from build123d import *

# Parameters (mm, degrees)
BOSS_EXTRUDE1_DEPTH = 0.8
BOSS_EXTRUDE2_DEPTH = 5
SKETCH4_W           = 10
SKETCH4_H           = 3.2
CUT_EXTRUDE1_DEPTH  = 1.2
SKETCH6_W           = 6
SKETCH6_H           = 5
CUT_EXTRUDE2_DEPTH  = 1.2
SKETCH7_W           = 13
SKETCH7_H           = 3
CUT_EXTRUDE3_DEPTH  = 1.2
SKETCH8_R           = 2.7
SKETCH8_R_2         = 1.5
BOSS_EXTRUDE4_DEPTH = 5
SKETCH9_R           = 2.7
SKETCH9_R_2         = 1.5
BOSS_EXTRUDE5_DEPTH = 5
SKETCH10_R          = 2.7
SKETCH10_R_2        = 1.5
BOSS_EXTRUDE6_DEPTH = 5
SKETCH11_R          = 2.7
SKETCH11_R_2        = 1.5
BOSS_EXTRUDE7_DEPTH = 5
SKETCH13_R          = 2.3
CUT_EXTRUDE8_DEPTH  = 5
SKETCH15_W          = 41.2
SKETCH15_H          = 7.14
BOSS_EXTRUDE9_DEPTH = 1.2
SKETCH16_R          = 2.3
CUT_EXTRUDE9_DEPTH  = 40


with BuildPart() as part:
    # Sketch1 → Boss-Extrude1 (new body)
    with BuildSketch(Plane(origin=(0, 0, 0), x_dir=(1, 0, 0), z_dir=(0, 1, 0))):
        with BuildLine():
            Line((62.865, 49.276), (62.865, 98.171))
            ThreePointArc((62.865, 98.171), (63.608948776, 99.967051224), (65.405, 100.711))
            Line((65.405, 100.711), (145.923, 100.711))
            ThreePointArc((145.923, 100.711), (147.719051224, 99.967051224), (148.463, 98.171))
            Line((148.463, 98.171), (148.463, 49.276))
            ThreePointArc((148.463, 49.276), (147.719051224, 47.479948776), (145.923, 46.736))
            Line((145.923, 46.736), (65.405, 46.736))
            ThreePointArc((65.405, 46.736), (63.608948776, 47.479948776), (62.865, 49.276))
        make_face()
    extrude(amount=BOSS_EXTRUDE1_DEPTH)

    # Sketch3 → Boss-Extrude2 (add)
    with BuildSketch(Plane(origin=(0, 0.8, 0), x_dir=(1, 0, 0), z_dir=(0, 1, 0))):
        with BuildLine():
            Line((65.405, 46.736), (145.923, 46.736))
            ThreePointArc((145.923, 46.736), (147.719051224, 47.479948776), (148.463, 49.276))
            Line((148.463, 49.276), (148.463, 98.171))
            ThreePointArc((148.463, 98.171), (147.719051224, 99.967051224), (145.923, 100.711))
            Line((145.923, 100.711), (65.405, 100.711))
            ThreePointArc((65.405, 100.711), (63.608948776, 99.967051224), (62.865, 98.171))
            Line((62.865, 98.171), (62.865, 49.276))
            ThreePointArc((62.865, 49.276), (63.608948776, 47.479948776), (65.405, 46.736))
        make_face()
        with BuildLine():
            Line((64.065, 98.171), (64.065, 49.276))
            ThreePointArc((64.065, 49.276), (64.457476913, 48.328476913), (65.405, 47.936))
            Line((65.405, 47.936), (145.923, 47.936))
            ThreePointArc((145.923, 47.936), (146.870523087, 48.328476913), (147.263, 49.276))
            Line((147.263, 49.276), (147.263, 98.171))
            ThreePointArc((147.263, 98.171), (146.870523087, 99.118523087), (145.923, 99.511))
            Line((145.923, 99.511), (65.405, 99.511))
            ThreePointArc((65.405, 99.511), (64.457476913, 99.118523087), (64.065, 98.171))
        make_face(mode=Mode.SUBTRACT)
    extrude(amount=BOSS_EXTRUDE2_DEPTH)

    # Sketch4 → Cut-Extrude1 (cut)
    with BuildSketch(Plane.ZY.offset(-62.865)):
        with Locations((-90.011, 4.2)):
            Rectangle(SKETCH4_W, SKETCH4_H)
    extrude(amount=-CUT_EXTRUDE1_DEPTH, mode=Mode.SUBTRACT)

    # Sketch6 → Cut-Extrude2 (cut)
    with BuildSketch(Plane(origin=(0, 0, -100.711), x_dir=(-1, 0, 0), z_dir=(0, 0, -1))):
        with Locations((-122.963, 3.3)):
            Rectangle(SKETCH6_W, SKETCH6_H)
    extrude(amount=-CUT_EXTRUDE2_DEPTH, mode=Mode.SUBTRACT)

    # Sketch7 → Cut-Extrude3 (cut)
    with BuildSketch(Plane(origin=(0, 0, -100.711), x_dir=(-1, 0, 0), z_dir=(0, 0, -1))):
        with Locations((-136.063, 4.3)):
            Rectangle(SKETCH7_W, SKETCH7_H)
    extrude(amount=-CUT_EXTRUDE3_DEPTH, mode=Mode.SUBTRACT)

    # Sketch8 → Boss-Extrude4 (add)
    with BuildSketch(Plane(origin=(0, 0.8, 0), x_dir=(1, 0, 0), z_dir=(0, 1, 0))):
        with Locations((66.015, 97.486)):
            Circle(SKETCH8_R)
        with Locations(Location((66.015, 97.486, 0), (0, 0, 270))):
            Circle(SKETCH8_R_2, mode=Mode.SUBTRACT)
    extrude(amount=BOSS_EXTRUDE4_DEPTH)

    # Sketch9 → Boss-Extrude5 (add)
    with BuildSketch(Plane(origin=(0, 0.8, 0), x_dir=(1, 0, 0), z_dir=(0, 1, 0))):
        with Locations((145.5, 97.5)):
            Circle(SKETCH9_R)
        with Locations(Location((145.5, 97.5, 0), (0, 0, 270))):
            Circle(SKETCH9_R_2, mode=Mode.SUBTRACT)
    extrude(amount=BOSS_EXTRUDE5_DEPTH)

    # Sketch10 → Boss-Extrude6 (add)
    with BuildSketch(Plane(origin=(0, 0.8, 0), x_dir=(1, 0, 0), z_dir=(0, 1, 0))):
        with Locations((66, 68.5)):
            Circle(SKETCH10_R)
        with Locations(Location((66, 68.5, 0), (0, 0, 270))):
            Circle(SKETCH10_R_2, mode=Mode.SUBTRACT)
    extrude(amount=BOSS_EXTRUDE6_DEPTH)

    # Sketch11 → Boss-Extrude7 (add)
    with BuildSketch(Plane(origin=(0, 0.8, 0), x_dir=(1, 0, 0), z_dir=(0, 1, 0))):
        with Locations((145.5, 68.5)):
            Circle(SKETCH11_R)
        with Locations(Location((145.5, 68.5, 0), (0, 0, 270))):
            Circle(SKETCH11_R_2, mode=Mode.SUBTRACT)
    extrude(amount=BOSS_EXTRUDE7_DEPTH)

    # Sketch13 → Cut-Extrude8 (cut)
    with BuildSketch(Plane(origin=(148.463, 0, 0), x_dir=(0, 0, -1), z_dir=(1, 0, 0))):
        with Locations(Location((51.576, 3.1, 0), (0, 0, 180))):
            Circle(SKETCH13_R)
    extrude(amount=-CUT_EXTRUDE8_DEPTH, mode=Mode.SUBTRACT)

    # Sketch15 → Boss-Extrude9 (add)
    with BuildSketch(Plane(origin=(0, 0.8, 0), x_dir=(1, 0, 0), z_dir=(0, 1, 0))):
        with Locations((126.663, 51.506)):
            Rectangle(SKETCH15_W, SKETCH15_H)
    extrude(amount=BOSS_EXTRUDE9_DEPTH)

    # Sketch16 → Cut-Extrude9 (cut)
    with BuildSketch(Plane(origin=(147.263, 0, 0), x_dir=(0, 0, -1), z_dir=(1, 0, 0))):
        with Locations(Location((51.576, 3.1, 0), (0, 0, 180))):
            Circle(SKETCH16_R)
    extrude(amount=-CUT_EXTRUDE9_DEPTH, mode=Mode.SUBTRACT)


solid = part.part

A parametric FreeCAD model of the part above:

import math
import FreeCAD as App
import Part
import Sketcher

V = App.Vector

doc = App.newDocument("Part")
params = doc.addObject("Spreadsheet::Sheet", "Params")
for row, (alias, value) in enumerate([
    ("sketch1_radius", "2.54 mm"),
    ("pad1_length", "0.8 mm"),
    ("sketch2_radius", "2.54 mm"),
    ("sketch2_radius2", "1.34 mm"),
    ("pad2_length", "5 mm"),
    ("sketch3_height", "10 mm"),
    ("sketch3_width", "3.2 mm"),
    ("pocket1_length", "1.2 mm"),
    ("sketch4_width", "6 mm"),
    ("sketch4_height", "5 mm"),
    ("pocket2_length", "1.2 mm"),
    ("sketch5_width", "13 mm"),
    ("sketch5_height", "3 mm"),
    ("pocket3_length", "1.2 mm"),
    ("sketch6_diameter", "3 mm"),
    ("sketch6_diameter2", "5.4 mm"),
    ("pad3_length", "5 mm"),
    ("sketch7_diameter", "3 mm"),
    ("sketch7_diameter2", "5.4 mm"),
    ("pad4_length", "5 mm"),
    ("sketch8_diameter", "3 mm"),
    ("sketch8_diameter2", "5.4 mm"),
    ("pad5_length", "5 mm"),
    ("sketch9_diameter", "3 mm"),
    ("sketch9_diameter2", "5.4 mm"),
    ("pad6_length", "5 mm"),
    ("sketch10_diameter", "4.6 mm"),
    ("pocket4_length", "5 mm"),
    ("sketch11_width", "41.2 mm"),
    ("sketch11_height", "7.14 mm"),
    ("pad7_length", "1.2 mm"),
    ("sketch12_diameter", "4.6 mm"),
    ("pocket5_length", "40 mm"),
], start=1):
    params.set(f"A{row}", alias)
    params.set(f"B{row}", "=" + value)
    params.setAlias(f"B{row}", alias)

body = doc.addObject("PartDesign::Body", "Body")

# Sketch on XZ plane
sketch1 = body.newObject("Sketcher::SketchObject", "Sketch")
sketch1.AttachmentSupport = (doc.getObject("XZ_Plane"), [""])
sketch1.MapMode = "FlatFace"
sketch1.addGeometry([
    Part.LineSegment(V(62.865, -98.171, 0), V(62.865, -49.276, 0)),  # 0
    Part.ArcOfCircle(Part.Circle(V(65.405, -49.276, 0), V(0, 0, 1), 2.54), math.radians(90), math.radians(180)),  # 1
    Part.LineSegment(V(65.405, -46.736, 0), V(145.923, -46.736, 0)),  # 2
    Part.ArcOfCircle(Part.Circle(V(145.923, -49.276, 0), V(0, 0, 1), 2.54), math.radians(0), math.radians(90)),  # 3
    Part.LineSegment(V(148.463, -49.276, 0), V(148.463, -98.171, 0)),  # 4
    Part.ArcOfCircle(Part.Circle(V(145.923, -98.171, 0), V(0, 0, 1), 2.54), math.radians(-90), math.radians(0)),  # 5
    Part.LineSegment(V(145.923, -100.711, 0), V(65.405, -100.711, 0)),  # 6
    Part.ArcOfCircle(Part.Circle(V(65.405, -98.171, 0), V(0, 0, 1), 2.54), math.radians(-180), math.radians(-90)),  # 7
], False)
sketch1.addConstraint([
    Sketcher.Constraint("Tangent", 0, 2, 1, 2),
    Sketcher.Constraint("Tangent", 1, 1, 2, 1),
    Sketcher.Constraint("Tangent", 2, 2, 3, 2),
    Sketcher.Constraint("Tangent", 3, 1, 4, 1),
    Sketcher.Constraint("Tangent", 4, 2, 5, 2),
    Sketcher.Constraint("Tangent", 5, 1, 6, 1),
    Sketcher.Constraint("Tangent", 6, 2, 7, 2),
    Sketcher.Constraint("Tangent", 7, 1, 0, 1),
    Sketcher.Constraint("Vertical", 0),
    Sketcher.Constraint("Horizontal", 2),
    Sketcher.Constraint("Vertical", 4),
    Sketcher.Constraint("Horizontal", 6),
    Sketcher.Constraint("Equal", 1, 3),
    Sketcher.Constraint("Equal", 3, 5),
    Sketcher.Constraint("Equal", 5, 7),
    Sketcher.Constraint("Radius", 1, 2.54),
    Sketcher.Constraint("DistanceX", 2, 1, 2, 2, 80.518),
    Sketcher.Constraint("DistanceY", 0, 1, 0, 2, 48.895),
    Sketcher.Constraint("DistanceX", -1, 1, 1, 3, 65.405),
    Sketcher.Constraint("DistanceY", 1, 3, -1, 1, 49.276),
])
sketch1.setExpression("Constraints[15]", "Params.sketch1_radius")
pad1 = body.newObject("PartDesign::Pad", "Pad")
pad1.Profile = sketch1
pad1.setExpression("Length", "Params.pad1_length")
pad1.Reversed = True

# Sketch on XZ plane
sketch2 = body.newObject("Sketcher::SketchObject", "Sketch001")
sketch2.AttachmentSupport = (doc.getObject("XZ_Plane"), [""])
sketch2.MapMode = "FlatFace"
sketch2.AttachmentOffset = App.Placement(V(0, 0, -0.8), App.Rotation())
sketch2.addGeometry([
    Part.LineSegment(V(65.405, -46.736, 0), V(145.923, -46.736, 0)),  # 0
    Part.ArcOfCircle(Part.Circle(V(145.923, -49.276, 0), V(0, 0, 1), 2.54), math.radians(0), math.radians(90)),  # 1
    Part.LineSegment(V(148.463, -49.276, 0), V(148.463, -98.171, 0)),  # 2
    Part.ArcOfCircle(Part.Circle(V(145.923, -98.171, 0), V(0, 0, 1), 2.54), math.radians(-90), math.radians(0)),  # 3
    Part.LineSegment(V(145.923, -100.711, 0), V(65.405, -100.711, 0)),  # 4
    Part.ArcOfCircle(Part.Circle(V(65.405, -98.171, 0), V(0, 0, 1), 2.54), math.radians(-180), math.radians(-90)),  # 5
    Part.LineSegment(V(62.865, -98.171, 0), V(62.865, -49.276, 0)),  # 6
    Part.ArcOfCircle(Part.Circle(V(65.405, -49.276, 0), V(0, 0, 1), 2.54), math.radians(90), math.radians(180)),  # 7
    Part.LineSegment(V(64.065, -49.276, 0), V(64.065, -98.171, 0)),  # 8
    Part.ArcOfCircle(Part.Circle(V(65.405, -98.171, 0), V(0, 0, 1), 1.34), math.radians(180), math.radians(270)),  # 9
    Part.LineSegment(V(65.405, -99.511, 0), V(145.923, -99.511, 0)),  # 10
    Part.ArcOfCircle(Part.Circle(V(145.923, -98.171, 0), V(0, 0, 1), 1.34), math.radians(-90), math.radians(0)),  # 11
    Part.LineSegment(V(147.263, -98.171, 0), V(147.263, -49.276, 0)),  # 12
    Part.ArcOfCircle(Part.Circle(V(145.923, -49.276, 0), V(0, 0, 1), 1.34), math.radians(0), math.radians(90)),  # 13
    Part.LineSegment(V(145.923, -47.936, 0), V(65.405, -47.936, 0)),  # 14
    Part.ArcOfCircle(Part.Circle(V(65.405, -49.276, 0), V(0, 0, 1), 1.34), math.radians(90), math.radians(180)),  # 15
], False)
sketch2.addConstraint([
    Sketcher.Constraint("Tangent", 0, 2, 1, 2),
    Sketcher.Constraint("Tangent", 1, 1, 2, 1),
    Sketcher.Constraint("Tangent", 2, 2, 3, 2),
    Sketcher.Constraint("Tangent", 3, 1, 4, 1),
    Sketcher.Constraint("Tangent", 4, 2, 5, 2),
    Sketcher.Constraint("Tangent", 5, 1, 6, 1),
    Sketcher.Constraint("Tangent", 6, 2, 7, 2),
    Sketcher.Constraint("Tangent", 7, 1, 0, 1),
    Sketcher.Constraint("Tangent", 8, 2, 9, 1),
    Sketcher.Constraint("Tangent", 9, 2, 10, 1),
    Sketcher.Constraint("Tangent", 10, 2, 11, 1),
    Sketcher.Constraint("Tangent", 11, 2, 12, 1),
    Sketcher.Constraint("Tangent", 12, 2, 13, 1),
    Sketcher.Constraint("Tangent", 13, 2, 14, 1),
    Sketcher.Constraint("Tangent", 14, 2, 15, 1),
    Sketcher.Constraint("Tangent", 15, 2, 8, 1),
    Sketcher.Constraint("Horizontal", 0),
    Sketcher.Constraint("Vertical", 2),
    Sketcher.Constraint("Horizontal", 4),
    Sketcher.Constraint("Vertical", 6),
    Sketcher.Constraint("Vertical", 8),
    Sketcher.Constraint("Horizontal", 10),
    Sketcher.Constraint("Vertical", 12),
    Sketcher.Constraint("Horizontal", 14),
    Sketcher.Constraint("Coincident", 9, 3, 5, 3),
    Sketcher.Constraint("Coincident", 11, 3, 3, 3),
    Sketcher.Constraint("Coincident", 13, 3, 1, 3),
    Sketcher.Constraint("Equal", 1, 3),
    Sketcher.Constraint("Equal", 3, 5),
    Sketcher.Constraint("Equal", 5, 7),
    Sketcher.Constraint("Equal", 13, 15),
    Sketcher.Constraint("Radius", 1, 2.54),
    Sketcher.Constraint("Radius", 9, 1.34),
    Sketcher.Constraint("DistanceX", 0, 1, 0, 2, 80.518),
    Sketcher.Constraint("DistanceY", 2, 2, 2, 1, 48.895),
    Sketcher.Constraint("DistanceX", -1, 1, 1, 3, 145.923),
    Sketcher.Constraint("DistanceY", 1, 3, -1, 1, 49.276),
])
sketch2.setExpression("Constraints[31]", "Params.sketch2_radius")
sketch2.setExpression("Constraints[32]", "Params.sketch2_radius2")
pad2 = body.newObject("PartDesign::Pad", "Pad001")
pad2.Profile = sketch2
pad2.setExpression("Length", "Params.pad2_length")
pad2.Reversed = True

# Sketch on YZ plane
sketch3 = body.newObject("Sketcher::SketchObject", "Sketch002")
sketch3.AttachmentSupport = (doc.getObject("YZ_Plane"), [""])
sketch3.MapMode = "FlatFace"
sketch3.AttachmentOffset = App.Placement(V(0, 0, 62.865), App.Rotation())
sketch3.addGeometry([
    Part.LineSegment(V(5.8, -95.011, 0), V(2.6, -95.011, 0)),
    Part.LineSegment(V(2.6, -95.011, 0), V(2.6, -85.011, 0)),
    Part.LineSegment(V(2.6, -85.011, 0), V(5.8, -85.011, 0)),
    Part.LineSegment(V(5.8, -85.011, 0), V(5.8, -95.011, 0)),
], False)
sketch3.addConstraint([
    Sketcher.Constraint("Coincident", 0, 2, 1, 1),
    Sketcher.Constraint("Coincident", 1, 2, 2, 1),
    Sketcher.Constraint("Coincident", 2, 2, 3, 1),
    Sketcher.Constraint("Coincident", 3, 2, 0, 1),
    Sketcher.Constraint("Horizontal", 0),
    Sketcher.Constraint("Vertical", 1),
    Sketcher.Constraint("Horizontal", 2),
    Sketcher.Constraint("Vertical", 3),
    Sketcher.Constraint("DistanceY", 1, 1, 1, 2, 10.0),
    Sketcher.Constraint("DistanceX", 0, 2, 0, 1, 3.2),
    Sketcher.Constraint("DistanceX", -1, 1, 0, 2, 2.6),
    Sketcher.Constraint("DistanceY", 0, 2, -1, 1, 95.011),
])
sketch3.setExpression("Constraints[8]", "Params.sketch3_height")
sketch3.setExpression("Constraints[9]", "Params.sketch3_width")
pocket1 = body.newObject("PartDesign::Pocket", "Pocket")
pocket1.Profile = sketch3
pocket1.setExpression("Length", "Params.pocket1_length")
pocket1.Reversed = True

# Sketch on XY plane
sketch4 = body.newObject("Sketcher::SketchObject", "Sketch003")
sketch4.AttachmentSupport = (doc.getObject("XY_Plane"), [""])
sketch4.MapMode = "FlatFace"
sketch4.AttachmentOffset = App.Placement(V(0, 0, -100.711), App.Rotation())
sketch4.addGeometry([
    Part.LineSegment(V(125.963, 5.8, 0), V(125.963, 0.8, 0)),
    Part.LineSegment(V(125.963, 0.8, 0), V(119.963, 0.8, 0)),
    Part.LineSegment(V(119.963, 0.8, 0), V(119.963, 5.8, 0)),
    Part.LineSegment(V(119.963, 5.8, 0), V(125.963, 5.8, 0)),
], False)
sketch4.addConstraint([
    Sketcher.Constraint("Coincident", 0, 2, 1, 1),
    Sketcher.Constraint("Coincident", 1, 2, 2, 1),
    Sketcher.Constraint("Coincident", 2, 2, 3, 1),
    Sketcher.Constraint("Coincident", 3, 2, 0, 1),
    Sketcher.Constraint("Vertical", 0),
    Sketcher.Constraint("Horizontal", 1),
    Sketcher.Constraint("Vertical", 2),
    Sketcher.Constraint("Horizontal", 3),
    Sketcher.Constraint("DistanceX", 1, 2, 1, 1, 6.0),
    Sketcher.Constraint("DistanceY", 0, 2, 0, 1, 5.0),
    Sketcher.Constraint("DistanceY", -1, 1, 0, 2, 0.8),
    Sketcher.Constraint("DistanceX", -1, 1, 0, 2, 125.963),
])
sketch4.setExpression("Constraints[8]", "Params.sketch4_width")
sketch4.setExpression("Constraints[9]", "Params.sketch4_height")
pocket2 = body.newObject("PartDesign::Pocket", "Pocket001")
pocket2.Profile = sketch4
pocket2.setExpression("Length", "Params.pocket2_length")
pocket2.Reversed = True

# Sketch on XY plane
sketch5 = body.newObject("Sketcher::SketchObject", "Sketch004")
sketch5.AttachmentSupport = (doc.getObject("XY_Plane"), [""])
sketch5.MapMode = "FlatFace"
sketch5.AttachmentOffset = App.Placement(V(0, 0, -100.711), App.Rotation())
sketch5.addGeometry([
    Part.LineSegment(V(142.563, 5.8, 0), V(142.563, 2.8, 0)),
    Part.LineSegment(V(142.563, 2.8, 0), V(129.563, 2.8, 0)),
    Part.LineSegment(V(129.563, 2.8, 0), V(129.563, 5.8, 0)),
    Part.LineSegment(V(129.563, 5.8, 0), V(142.563, 5.8, 0)),
], False)
sketch5.addConstraint([
    Sketcher.Constraint("Coincident", 0, 2, 1, 1),
    Sketcher.Constraint("Coincident", 1, 2, 2, 1),
    Sketcher.Constraint("Coincident", 2, 2, 3, 1),
    Sketcher.Constraint("Coincident", 3, 2, 0, 1),
    Sketcher.Constraint("Vertical", 0),
    Sketcher.Constraint("Horizontal", 1),
    Sketcher.Constraint("Vertical", 2),
    Sketcher.Constraint("Horizontal", 3),
    Sketcher.Constraint("DistanceX", 1, 2, 1, 1, 13.0),
    Sketcher.Constraint("DistanceY", 0, 2, 0, 1, 3.0),
    Sketcher.Constraint("DistanceY", -1, 1, 0, 2, 2.8),
    Sketcher.Constraint("DistanceX", -1, 1, 0, 2, 142.563),
])
sketch5.setExpression("Constraints[8]", "Params.sketch5_width")
sketch5.setExpression("Constraints[9]", "Params.sketch5_height")
pocket3 = body.newObject("PartDesign::Pocket", "Pocket002")
pocket3.Profile = sketch5
pocket3.setExpression("Length", "Params.pocket3_length")
pocket3.Reversed = True

# Sketch on XZ plane
sketch6 = body.newObject("Sketcher::SketchObject", "Sketch005")
sketch6.AttachmentSupport = (doc.getObject("XZ_Plane"), [""])
sketch6.MapMode = "FlatFace"
sketch6.AttachmentOffset = App.Placement(V(0, 0, -0.8), App.Rotation())
sketch6.addGeometry([
    Part.Circle(V(66.015, -97.486, 0), V(0, 0, 1), 2.7),
    Part.Circle(V(66.015, -97.486, 0), V(0, 0, 1), 1.5),
], False)
sketch6.addConstraint([
    Sketcher.Constraint("Coincident", 1, 3, 0, 3),
    Sketcher.Constraint("Diameter", 1, 3.0),
    Sketcher.Constraint("Diameter", 0, 5.4),
    Sketcher.Constraint("DistanceX", -1, 1, 0, 3, 66.015),
    Sketcher.Constraint("DistanceY", 0, 3, -1, 1, 97.486),
])
sketch6.setExpression("Constraints[1]", "Params.sketch6_diameter")
sketch6.setExpression("Constraints[2]", "Params.sketch6_diameter2")
pad3 = body.newObject("PartDesign::Pad", "Pad002")
pad3.Profile = sketch6
pad3.setExpression("Length", "Params.pad3_length")
pad3.Reversed = True

# Sketch on XZ plane
sketch7 = body.newObject("Sketcher::SketchObject", "Sketch006")
sketch7.AttachmentSupport = (doc.getObject("XZ_Plane"), [""])
sketch7.MapMode = "FlatFace"
sketch7.AttachmentOffset = App.Placement(V(0, 0, -0.8), App.Rotation())
sketch7.addGeometry([
    Part.Circle(V(145.5, -97.5, 0), V(0, 0, 1), 2.7),
    Part.Circle(V(145.5, -97.5, 0), V(0, 0, 1), 1.5),
], False)
sketch7.addConstraint([
    Sketcher.Constraint("Coincident", 1, 3, 0, 3),
    Sketcher.Constraint("Diameter", 1, 3.0),
    Sketcher.Constraint("Diameter", 0, 5.4),
    Sketcher.Constraint("DistanceX", -1, 1, 0, 3, 145.5),
    Sketcher.Constraint("DistanceY", 0, 3, -1, 1, 97.5),
])
sketch7.setExpression("Constraints[1]", "Params.sketch7_diameter")
sketch7.setExpression("Constraints[2]", "Params.sketch7_diameter2")
pad4 = body.newObject("PartDesign::Pad", "Pad003")
pad4.Profile = sketch7
pad4.setExpression("Length", "Params.pad4_length")
pad4.Reversed = True

# Sketch on XZ plane
sketch8 = body.newObject("Sketcher::SketchObject", "Sketch007")
sketch8.AttachmentSupport = (doc.getObject("XZ_Plane"), [""])
sketch8.MapMode = "FlatFace"
sketch8.AttachmentOffset = App.Placement(V(0, 0, -0.8), App.Rotation())
sketch8.addGeometry([
    Part.Circle(V(66, -68.5, 0), V(0, 0, 1), 2.7),
    Part.Circle(V(66, -68.5, 0), V(0, 0, 1), 1.5),
], False)
sketch8.addConstraint([
    Sketcher.Constraint("Coincident", 1, 3, 0, 3),
    Sketcher.Constraint("Diameter", 1, 3.0),
    Sketcher.Constraint("Diameter", 0, 5.4),
    Sketcher.Constraint("DistanceX", -1, 1, 0, 3, 66.0),
    Sketcher.Constraint("DistanceY", 0, 3, -1, 1, 68.5),
])
sketch8.setExpression("Constraints[1]", "Params.sketch8_diameter")
sketch8.setExpression("Constraints[2]", "Params.sketch8_diameter2")
pad5 = body.newObject("PartDesign::Pad", "Pad004")
pad5.Profile = sketch8
pad5.setExpression("Length", "Params.pad5_length")
pad5.Reversed = True

# Sketch on XZ plane
sketch9 = body.newObject("Sketcher::SketchObject", "Sketch008")
sketch9.AttachmentSupport = (doc.getObject("XZ_Plane"), [""])
sketch9.MapMode = "FlatFace"
sketch9.AttachmentOffset = App.Placement(V(0, 0, -0.8), App.Rotation())
sketch9.addGeometry([
    Part.Circle(V(145.5, -68.5, 0), V(0, 0, 1), 2.7),
    Part.Circle(V(145.5, -68.5, 0), V(0, 0, 1), 1.5),
], False)
sketch9.addConstraint([
    Sketcher.Constraint("Coincident", 1, 3, 0, 3),
    Sketcher.Constraint("Diameter", 1, 3.0),
    Sketcher.Constraint("Diameter", 0, 5.4),
    Sketcher.Constraint("DistanceX", -1, 1, 0, 3, 145.5),
    Sketcher.Constraint("DistanceY", 0, 3, -1, 1, 68.5),
])
sketch9.setExpression("Constraints[1]", "Params.sketch9_diameter")
sketch9.setExpression("Constraints[2]", "Params.sketch9_diameter2")
pad6 = body.newObject("PartDesign::Pad", "Pad005")
pad6.Profile = sketch9
pad6.setExpression("Length", "Params.pad6_length")
pad6.Reversed = True

# Sketch on YZ plane
sketch10 = body.newObject("Sketcher::SketchObject", "Sketch009")
sketch10.AttachmentSupport = (doc.getObject("YZ_Plane"), [""])
sketch10.MapMode = "FlatFace"
sketch10.AttachmentOffset = App.Placement(V(0, 0, 148.463), App.Rotation())
sketch10.addGeometry(Part.Circle(V(3.1, -51.576, 0), V(0, 0, 1), 2.3), False)
sketch10.addConstraint([
    Sketcher.Constraint("Diameter", 0, 4.6),
    Sketcher.Constraint("DistanceX", -1, 1, 0, 3, 3.1),
    Sketcher.Constraint("DistanceY", 0, 3, -1, 1, 51.576),
])
sketch10.setExpression("Constraints[0]", "Params.sketch10_diameter")
pocket4 = body.newObject("PartDesign::Pocket", "Pocket003")
pocket4.Profile = sketch10
pocket4.setExpression("Length", "Params.pocket4_length")

# Sketch on XZ plane
sketch11 = body.newObject("Sketcher::SketchObject", "Sketch010")
sketch11.AttachmentSupport = (doc.getObject("XZ_Plane"), [""])
sketch11.MapMode = "FlatFace"
sketch11.AttachmentOffset = App.Placement(V(0, 0, -0.8), App.Rotation())
sketch11.addGeometry([
    Part.LineSegment(V(106.063, -55.076, 0), V(106.063, -47.936, 0)),
    Part.LineSegment(V(106.063, -47.936, 0), V(147.263, -47.936, 0)),
    Part.LineSegment(V(147.263, -47.936, 0), V(147.263, -55.076, 0)),
    Part.LineSegment(V(147.263, -55.076, 0), V(106.063, -55.076, 0)),
], False)
sketch11.addConstraint([
    Sketcher.Constraint("Coincident", 0, 2, 1, 1),
    Sketcher.Constraint("Coincident", 1, 2, 2, 1),
    Sketcher.Constraint("Coincident", 2, 2, 3, 1),
    Sketcher.Constraint("Coincident", 3, 2, 0, 1),
    Sketcher.Constraint("Vertical", 0),
    Sketcher.Constraint("Horizontal", 1),
    Sketcher.Constraint("Vertical", 2),
    Sketcher.Constraint("Horizontal", 3),
    Sketcher.Constraint("DistanceX", 1, 1, 1, 2, 41.2),
    Sketcher.Constraint("DistanceY", 0, 1, 0, 2, 7.14),
    Sketcher.Constraint("DistanceX", -1, 1, 0, 2, 106.063),
    Sketcher.Constraint("DistanceY", 0, 2, -1, 1, 47.936),
])
sketch11.setExpression("Constraints[8]", "Params.sketch11_width")
sketch11.setExpression("Constraints[9]", "Params.sketch11_height")
pad7 = body.newObject("PartDesign::Pad", "Pad006")
pad7.Profile = sketch11
pad7.setExpression("Length", "Params.pad7_length")
pad7.Reversed = True

# Sketch on YZ plane
sketch12 = body.newObject("Sketcher::SketchObject", "Sketch011")
sketch12.AttachmentSupport = (doc.getObject("YZ_Plane"), [""])
sketch12.MapMode = "FlatFace"
sketch12.AttachmentOffset = App.Placement(V(0, 0, 147.263), App.Rotation())
sketch12.addGeometry(Part.Circle(V(3.1, -51.576, 0), V(0, 0, 1), 2.3), False)
sketch12.addConstraint([
    Sketcher.Constraint("Diameter", 0, 4.6),
    Sketcher.Constraint("DistanceX", -1, 1, 0, 3, 3.1),
    Sketcher.Constraint("DistanceY", 0, 3, -1, 1, 51.576),
])
sketch12.setExpression("Constraints[0]", "Params.sketch12_diameter")
pocket5 = body.newObject("PartDesign::Pocket", "Pocket004")
pocket5.Profile = sketch12
pocket5.setExpression("Length", "Params.pocket5_length")

doc.recompute()
